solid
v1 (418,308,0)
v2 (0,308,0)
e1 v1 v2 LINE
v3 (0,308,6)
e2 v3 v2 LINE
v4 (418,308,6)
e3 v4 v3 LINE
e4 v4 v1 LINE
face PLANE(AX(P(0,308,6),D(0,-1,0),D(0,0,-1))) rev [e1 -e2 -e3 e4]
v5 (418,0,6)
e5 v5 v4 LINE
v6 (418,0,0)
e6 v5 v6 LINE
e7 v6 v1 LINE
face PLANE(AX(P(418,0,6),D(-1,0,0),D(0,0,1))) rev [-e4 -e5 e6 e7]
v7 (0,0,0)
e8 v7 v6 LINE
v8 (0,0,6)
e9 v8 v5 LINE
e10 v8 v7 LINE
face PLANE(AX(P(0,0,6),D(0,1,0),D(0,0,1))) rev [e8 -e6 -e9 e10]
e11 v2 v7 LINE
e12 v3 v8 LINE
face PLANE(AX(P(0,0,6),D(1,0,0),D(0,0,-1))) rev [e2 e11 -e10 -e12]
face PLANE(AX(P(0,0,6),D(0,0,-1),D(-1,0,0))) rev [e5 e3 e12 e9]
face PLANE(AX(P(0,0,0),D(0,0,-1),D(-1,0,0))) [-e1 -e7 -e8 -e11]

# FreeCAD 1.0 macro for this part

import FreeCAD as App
import Part
import Sketcher

V = App.Vector

doc = App.newDocument("Part")
body = doc.addObject("PartDesign::Body", "Body")

sketch1 = doc.addObject("Sketcher::SketchObject", "Sketch")
body.addObject(sketch1)
sketch1.AttachmentSupport = (doc.XY_Plane, [""])
sketch1.MapMode = "FlatFace"
sketch1.addGeometry([
    Part.LineSegment(V(0, 308, 0), V(0, 0, 0)),
    Part.LineSegment(V(0, 0, 0), V(418, 0, 0)),
    Part.LineSegment(V(418, 0, 0), V(418, 308, 0)),
    Part.LineSegment(V(418, 308, 0), V(0, 308, 0)),
], False)
sketch1.addConstraint([
    Sketcher.Constraint("Coincident", 0, 2, 1, 1),
    Sketcher.Constraint("Coincident", 1, 2, 2, 1),
    Sketcher.Constraint("Coincident", 2, 2, 3, 1),
    Sketcher.Constraint("Coincident", 3, 2, 0, 1),
    Sketcher.Constraint("Vertical", 0),
    Sketcher.Constraint("Horizontal", 1),
    Sketcher.Constraint("Vertical", 2),
    Sketcher.Constraint("Horizontal", 3),
    Sketcher.Constraint("Coincident", 0, 2, -1, 1),
    Sketcher.Constraint("DistanceX", 1, 1, 1, 2, 418.0),
    Sketcher.Constraint("DistanceY", 0, 2, 0, 1, 308.0),
])
pad1 = doc.addObject("PartDesign::Pad", "Pad")
body.addObject(pad1)
pad1.Profile = sketch1
pad1.Length = 6

doc.recompute()
